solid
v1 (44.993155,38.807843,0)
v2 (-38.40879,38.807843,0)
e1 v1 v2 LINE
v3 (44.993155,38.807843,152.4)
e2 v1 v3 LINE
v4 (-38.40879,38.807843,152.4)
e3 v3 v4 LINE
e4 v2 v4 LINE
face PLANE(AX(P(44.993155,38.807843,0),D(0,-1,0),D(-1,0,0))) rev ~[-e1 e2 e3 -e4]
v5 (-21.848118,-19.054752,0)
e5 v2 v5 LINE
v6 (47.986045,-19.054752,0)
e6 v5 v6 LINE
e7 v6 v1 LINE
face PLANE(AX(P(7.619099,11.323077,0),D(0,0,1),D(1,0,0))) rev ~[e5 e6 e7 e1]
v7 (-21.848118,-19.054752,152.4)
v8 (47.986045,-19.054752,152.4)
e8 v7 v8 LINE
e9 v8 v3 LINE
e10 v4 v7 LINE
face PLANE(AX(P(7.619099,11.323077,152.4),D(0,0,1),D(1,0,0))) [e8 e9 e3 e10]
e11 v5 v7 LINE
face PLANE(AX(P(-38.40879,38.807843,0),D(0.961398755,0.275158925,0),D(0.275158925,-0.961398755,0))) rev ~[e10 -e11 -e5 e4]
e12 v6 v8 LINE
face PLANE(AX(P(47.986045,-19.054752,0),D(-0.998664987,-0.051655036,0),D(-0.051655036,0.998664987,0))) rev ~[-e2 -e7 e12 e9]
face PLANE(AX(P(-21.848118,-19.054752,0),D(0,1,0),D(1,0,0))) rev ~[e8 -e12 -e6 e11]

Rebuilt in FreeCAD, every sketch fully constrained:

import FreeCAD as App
import Part
import Sketcher
Q = App.Units.Quantity


def add_polygon(sketch, points):
    """Adds a closed chain of lines whose ends are joined by coincident constraints."""
    first, n = sketch.GeometryCount, len(points)
    for a, b in zip(points, points[1:] + points[:1]):
        sketch.addGeometry(Part.LineSegment(App.Vector(*a, 0), App.Vector(*b, 0)), False)
    for i in range(n):
        sketch.addConstraint(Sketcher.Constraint("Coincident", first + i, 2, first + (i + 1) % n, 1))

doc = App.newDocument("Part")
body = doc.addObject("PartDesign::Body", "Body")

sketch1 = body.newObject("Sketcher::SketchObject", "Sketch")
sketch1.AttachmentSupport = (doc.getObject("XY_Plane"), [""])
sketch1.MapMode = "FlatFace"
add_polygon(sketch1, [(45, 39), (-38, 39), (-22, -19), (48, -19)])
sketch1.addConstraint(Sketcher.Constraint("Horizontal", 0))
sketch1.addConstraint(Sketcher.Constraint("Horizontal", 2))
sketch1.addConstraint(Sketcher.Constraint("DistanceX", 0, 2, 0, 1, Q("83.401945 mm")))
sketch1.addConstraint(Sketcher.Constraint("DistanceX", 2, 1, 2, 2, Q("69.834163 mm")))
sketch1.addConstraint(Sketcher.Constraint("DistanceX", 0, 2, -1, 1, Q("38.40879 mm")))
sketch1.addConstraint(Sketcher.Constraint("DistanceX", 3, 2, 2, 2, Q("2.99289 mm")))
sketch1.addConstraint(Sketcher.Constraint("Distance", 1, Q("60.185843 mm")))
sketch1.addConstraint(Sketcher.Constraint("DistanceY", -1, 1, 0, 2, Q("38.807843 mm")))
pad1 = body.newObject("PartDesign::Pad", "Pad")
pad1.Profile = sketch1
pad1.Length = Q("6 in")

doc.recompute()
